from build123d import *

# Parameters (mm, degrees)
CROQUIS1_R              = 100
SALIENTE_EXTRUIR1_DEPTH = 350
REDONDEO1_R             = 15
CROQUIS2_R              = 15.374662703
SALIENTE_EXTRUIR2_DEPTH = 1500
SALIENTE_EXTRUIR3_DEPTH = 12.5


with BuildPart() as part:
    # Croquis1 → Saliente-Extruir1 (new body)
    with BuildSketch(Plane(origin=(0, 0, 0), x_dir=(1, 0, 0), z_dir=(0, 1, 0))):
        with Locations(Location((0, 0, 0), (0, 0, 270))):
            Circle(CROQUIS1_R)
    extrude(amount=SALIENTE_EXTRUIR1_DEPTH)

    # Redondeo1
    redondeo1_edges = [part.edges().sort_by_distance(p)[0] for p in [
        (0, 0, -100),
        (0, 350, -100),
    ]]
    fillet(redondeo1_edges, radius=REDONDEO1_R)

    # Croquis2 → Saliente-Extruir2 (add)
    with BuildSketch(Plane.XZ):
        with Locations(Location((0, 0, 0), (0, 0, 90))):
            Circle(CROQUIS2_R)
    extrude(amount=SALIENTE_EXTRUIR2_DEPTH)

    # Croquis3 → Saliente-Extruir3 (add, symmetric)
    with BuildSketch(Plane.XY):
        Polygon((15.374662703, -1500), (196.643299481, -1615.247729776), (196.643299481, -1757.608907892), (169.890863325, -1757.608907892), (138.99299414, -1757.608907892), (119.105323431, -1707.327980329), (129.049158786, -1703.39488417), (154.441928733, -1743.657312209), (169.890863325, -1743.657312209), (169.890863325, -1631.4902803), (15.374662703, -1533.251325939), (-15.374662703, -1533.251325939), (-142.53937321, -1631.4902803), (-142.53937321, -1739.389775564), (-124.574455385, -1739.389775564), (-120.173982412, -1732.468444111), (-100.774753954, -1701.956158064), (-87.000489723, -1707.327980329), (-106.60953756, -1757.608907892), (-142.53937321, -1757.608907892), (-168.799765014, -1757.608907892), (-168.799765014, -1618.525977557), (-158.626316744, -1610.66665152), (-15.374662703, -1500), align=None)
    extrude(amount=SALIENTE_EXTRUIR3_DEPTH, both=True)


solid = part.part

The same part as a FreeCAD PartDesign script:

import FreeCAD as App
import Part
import Sketcher

V = App.Vector
Q = App.Units.Quantity


def edges_at(feature, points):
    """Names of the edges that pass closest to the given points."""
    edges = feature.Shape.Edges
    near = lambda p: min(range(len(edges)), key=lambda i: edges[i].distToShape(Part.Vertex(*p))[0])
    return sorted({f"Edge{near(p) + 1}" for p in points})


def add_polygon(sketch, points):
    """Adds a closed chain of lines whose ends are joined by coincident constraints."""
    first, n = sketch.GeometryCount, len(points)
    for a, b in zip(points, points[1:] + points[:1]):
        sketch.addGeometry(Part.LineSegment(App.Vector(*a, 0), App.Vector(*b, 0)), False)
    for i in range(n):
        sketch.addConstraint(Sketcher.Constraint("Coincident", first + i, 2, first + (i + 1) % n, 1))

doc = App.newDocument("Part")
params = doc.addObject("Spreadsheet::Sheet", "Params")
for row, (alias, value) in enumerate([
    ("sketch1_diameter", "200 mm"),
    ("pad1_length", "350 mm"),
    ("fillet_radius", "15 mm"),
    ("pad2_length", "1500 mm"),
    ("pad3_length", "25 mm"),
], start=1):
    params.set(f"A{row}", alias)
    params.set(f"B{row}", "=" + value)
    params.setAlias(f"B{row}", alias)

body = doc.addObject("PartDesign::Body", "Body")

# Sketch on XZ plane
sketch1 = doc.addObject("Sketcher::SketchObject", "Sketch")
body.addObject(sketch1)
sketch1.AttachmentSupport = (doc.XZ_Plane, [""])
sketch1.MapMode = "FlatFace"
sketch1.addGeometry(Part.Circle(V(0, 0, 0), V(0, 0, 1), 100), False)
sketch1.addConstraint([
    Sketcher.Constraint("Coincident", 0, 3, -1, 1),
    Sketcher.Constraint("Diameter", 0, Q("200 mm")),
])
sketch1.setExpression("Constraints[1]", "Params.sketch1_diameter")
pad1 = doc.addObject("PartDesign::Pad", "Pad")
body.addObject(pad1)
pad1.Profile = sketch1
pad1.setExpression("Length", "Params.pad1_length")
pad1.Reversed = True
doc.recompute()

fillet = doc.addObject("PartDesign::Fillet", "Fillet")
body.addObject(fillet)
fillet.Base = (pad1, edges_at(pad1, [(0, 0, -100), (0, 350, -100)]))
fillet.setExpression("Radius", "Params.fillet_radius")

# Sketch on XZ plane
sketch2 = doc.addObject("Sketcher::SketchObject", "Sketch001")
body.addObject(sketch2)
sketch2.AttachmentSupport = (doc.XZ_Plane, [""])
sketch2.MapMode = "FlatFace"
sketch2.addGeometry(Part.Circle(V(0, 0, 0), V(0, 0, 1), 15), False)
sketch2.addConstraint([
    Sketcher.Constraint("Coincident", 0, 3, -1, 1),
    Sketcher.Constraint("Diameter", 0, Q("30.749325 mm")),
])
pad2 = doc.addObject("PartDesign::Pad", "Pad001")
body.addObject(pad2)
pad2.Profile = sketch2
pad2.setExpression("Length", "Params.pad2_length")

# Sketch on XY plane
sketch3 = doc.addObject("Sketcher::SketchObject", "Sketch002")
body.addObject(sketch3)
sketch3.AttachmentSupport = (doc.XY_Plane, [""])
sketch3.MapMode = "FlatFace"
add_polygon(sketch3, [(197, -1615), (15, -1500), (-15, -1500), (-159, -1611), (-169, -1619), (-169, -1758), (-107, -1758), (-87, -1707), (-101, -1702), (-120, -1732), (-125, -1739), (-143, -1739), (-143, -1631), (-15, -1533), (15, -1533), (170, -1631), (170, -1744), (154, -1744), (129, -1703), (119, -1707), (139, -1758), (197, -1758)])  # lines 0-21
sketch3.addConstraint([
    Sketcher.Constraint("Horizontal", 1),
    Sketcher.Constraint("Vertical", 4),
    Sketcher.Constraint("Horizontal", 5),
    Sketcher.Constraint("Horizontal", 10),
    Sketcher.Constraint("Vertical", 11),
    Sketcher.Constraint("Horizontal", 13),
    Sketcher.Constraint("Vertical", 15),
    Sketcher.Constraint("Horizontal", 16),
    Sketcher.Constraint("Horizontal", 20),
    Sketcher.Constraint("Vertical", 21),
    Sketcher.Constraint("Parallel", 2, 3),
    Sketcher.Constraint("Perpendicular", 6, 7),
    Sketcher.Constraint("Perpendicular", 0, 8),
    Sketcher.Constraint("Parallel", 8, 9),
    Sketcher.Constraint("Parallel", 3, 12),
    Sketcher.Constraint("Perpendicular", 9, 14),
    Sketcher.Constraint("Perpendicular", 18, 19),
    Sketcher.Constraint("Horizontal", 11, 2, 14, 2),
    Sketcher.Constraint("Horizontal", 6, 2, 18, 2),
    Sketcher.Constraint("Horizontal", 5, 2, 19, 2),
    Sketcher.Constraint("Vertical", 1, 2, 12, 2),
    Sketcher.Constraint("Vertical", 0, 2, 13, 2),
    Sketcher.Constraint("DistanceY", 0, 2, -1, 1, Q("1500 mm")),
    Sketcher.Constraint("DistanceY", 4, 2, 4, 1, Q("139.08293 mm")),
    Sketcher.Constraint("DistanceY", 15, 2, 15, 1, Q("112.167032 mm")),
    Sketcher.Constraint("DistanceY", 21, 1, 21, 2, Q("142.361178 mm")),
    Sketcher.Constraint("DistanceX", -1, 1, 20, 2, Q("196.643299 mm")),
    Sketcher.Constraint("DistanceX", 5, 2, 0, 2, Q("121.9842 mm")),
    Sketcher.Constraint("DistanceX", 9, 2, 7, 2, Q("23.799701 mm")),
    Sketcher.Constraint("DistanceY", 6, 2, 11, 2, Q("75.8377 mm")),
    Sketcher.Constraint("DistanceX", 13, 2, 14, 2, Q("154.516201 mm")),
    Sketcher.Constraint("Distance", 6, Q("53.96931 mm")),
    Sketcher.Constraint("Distance", 14, Q("183.10147 mm")),
    Sketcher.Constraint("DistanceX", 1, 2, 1, 1, Q("30.749325 mm")),
    Sketcher.Constraint("DistanceX", 5, 1, 5, 2, Q("62.190227 mm")),
    Sketcher.Constraint("DistanceX", 10, 2, 10, 1, Q("17.964918 mm")),
    Sketcher.Constraint("DistanceX", 16, 2, 16, 1, Q("15.448935 mm")),
    Sketcher.Constraint("DistanceX", 20, 1, 20, 2, Q("57.650305 mm")),
    Sketcher.Constraint("DistanceY", 11, 1, 11, 2, Q("107.899495 mm")),
    Sketcher.Constraint("DistanceY", 2, 2, -1, 1, Q("1610.666652 mm")),
    Sketcher.Constraint("DistanceX", 6, 2, -1, 1, Q("87.00049 mm")),
    Sketcher.Constraint("DistanceX", -1, 1, 17, 2, Q("129.049159 mm")),
    Sketcher.Constraint("DistanceX", 8, 2, 7, 2, Q("19.399228 mm")),
    Sketcher.Constraint("DistanceY", 16, 2, 17, 2, Q("40.262428 mm")),
])
pad3 = doc.addObject("PartDesign::Pad", "Pad002")
body.addObject(pad3)
pad3.Profile = sketch3
pad3.setExpression("Length", "Params.pad3_length")
pad3.Midplane = True

doc.recompute()
